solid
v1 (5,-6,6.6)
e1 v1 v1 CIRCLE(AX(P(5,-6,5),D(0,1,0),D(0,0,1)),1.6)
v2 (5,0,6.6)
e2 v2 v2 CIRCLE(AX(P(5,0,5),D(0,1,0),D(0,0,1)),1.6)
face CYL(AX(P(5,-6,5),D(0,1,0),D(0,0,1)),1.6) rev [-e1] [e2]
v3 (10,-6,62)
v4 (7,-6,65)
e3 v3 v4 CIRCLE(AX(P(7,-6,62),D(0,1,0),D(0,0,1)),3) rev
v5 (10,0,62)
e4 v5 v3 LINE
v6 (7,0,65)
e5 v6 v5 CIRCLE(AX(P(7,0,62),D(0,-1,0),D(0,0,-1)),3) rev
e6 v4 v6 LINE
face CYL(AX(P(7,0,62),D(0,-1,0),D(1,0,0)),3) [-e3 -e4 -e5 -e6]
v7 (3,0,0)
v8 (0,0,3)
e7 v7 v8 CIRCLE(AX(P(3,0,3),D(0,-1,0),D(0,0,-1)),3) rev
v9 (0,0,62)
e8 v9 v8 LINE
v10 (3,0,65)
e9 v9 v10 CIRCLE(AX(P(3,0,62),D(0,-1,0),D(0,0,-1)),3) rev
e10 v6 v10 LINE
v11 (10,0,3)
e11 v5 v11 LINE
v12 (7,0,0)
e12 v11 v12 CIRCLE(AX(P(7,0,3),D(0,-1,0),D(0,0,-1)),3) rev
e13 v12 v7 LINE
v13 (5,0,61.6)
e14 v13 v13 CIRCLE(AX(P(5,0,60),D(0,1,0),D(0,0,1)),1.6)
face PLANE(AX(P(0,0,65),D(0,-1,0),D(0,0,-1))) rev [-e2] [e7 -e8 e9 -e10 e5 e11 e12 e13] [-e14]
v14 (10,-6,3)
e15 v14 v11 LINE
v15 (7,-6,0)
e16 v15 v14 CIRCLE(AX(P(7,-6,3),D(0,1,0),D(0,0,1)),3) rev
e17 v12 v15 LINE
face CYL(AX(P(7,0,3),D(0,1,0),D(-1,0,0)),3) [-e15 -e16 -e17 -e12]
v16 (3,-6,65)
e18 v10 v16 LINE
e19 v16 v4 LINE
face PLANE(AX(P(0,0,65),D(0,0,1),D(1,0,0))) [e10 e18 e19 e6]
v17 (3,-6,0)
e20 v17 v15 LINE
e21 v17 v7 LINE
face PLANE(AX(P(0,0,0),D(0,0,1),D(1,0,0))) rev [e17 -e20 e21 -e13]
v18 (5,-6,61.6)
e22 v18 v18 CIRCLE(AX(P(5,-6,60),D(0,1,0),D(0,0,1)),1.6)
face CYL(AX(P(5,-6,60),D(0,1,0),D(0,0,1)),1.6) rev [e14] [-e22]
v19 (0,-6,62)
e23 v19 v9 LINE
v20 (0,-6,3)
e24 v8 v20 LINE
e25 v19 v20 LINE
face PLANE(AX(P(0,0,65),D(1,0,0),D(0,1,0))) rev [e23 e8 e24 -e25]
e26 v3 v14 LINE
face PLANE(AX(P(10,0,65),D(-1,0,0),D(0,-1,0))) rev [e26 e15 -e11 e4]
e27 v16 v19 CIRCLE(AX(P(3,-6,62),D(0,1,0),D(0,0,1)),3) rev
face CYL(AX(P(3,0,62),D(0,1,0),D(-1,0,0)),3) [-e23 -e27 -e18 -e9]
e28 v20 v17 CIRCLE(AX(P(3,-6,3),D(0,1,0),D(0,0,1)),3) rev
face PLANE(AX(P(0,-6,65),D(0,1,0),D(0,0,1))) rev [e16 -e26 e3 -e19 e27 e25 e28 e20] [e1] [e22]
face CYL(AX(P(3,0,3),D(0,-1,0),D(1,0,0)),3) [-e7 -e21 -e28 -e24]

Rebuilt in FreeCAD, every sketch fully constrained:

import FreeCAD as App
import Part
import Sketcher
from FreeCAD import Vector
Q = App.Units.Quantity


def edges_at(feature, points):
    """Names of the edges that pass closest to the given points."""
    edges = feature.Shape.Edges
    near = lambda p: min(range(len(edges)), key=lambda i: edges[i].distToShape(Part.Vertex(*p))[0])
    return sorted({f"Edge{near(p) + 1}" for p in points})


def add_polygon(sketch, points):
    """Adds a closed chain of lines whose ends are joined by coincident constraints."""
    first, n = sketch.GeometryCount, len(points)
    for a, b in zip(points, points[1:] + points[:1]):
        sketch.addGeometry(Part.LineSegment(App.Vector(*a, 0), App.Vector(*b, 0)), False)
    for i in range(n):
        sketch.addConstraint(Sketcher.Constraint("Coincident", first + i, 2, first + (i + 1) % n, 1))

doc = App.newDocument("Part")
body = doc.addObject("PartDesign::Body", "Body")

sketch1 = doc.addObject("Sketcher::SketchObject", "Sketch")
body.addObject(sketch1)
sketch1.AttachmentSupport = (doc.XY_Plane, [""])
sketch1.MapMode = "FlatFace"
add_polygon(sketch1, [(0, 0), (0, -6), (10, -6), (10, 0)])
sketch1.addConstraint(Sketcher.Constraint("Vertical", 0))
sketch1.addConstraint(Sketcher.Constraint("Horizontal", 1))
sketch1.addConstraint(Sketcher.Constraint("Vertical", 2))
sketch1.addConstraint(Sketcher.Constraint("Horizontal", 3))
sketch1.addConstraint(Sketcher.Constraint("Coincident", 3, 2, -1, 1))
sketch1.addConstraint(Sketcher.Constraint("DistanceX", 1, 1, 1, 2, Q("10 mm")))
sketch1.addConstraint(Sketcher.Constraint("DistanceY", 0, 2, 0, 1, Q("6 mm")))
pad1 = doc.addObject("PartDesign::Pad", "Pad")
body.addObject(pad1)
pad1.Profile = sketch1
pad1.Length = 65

sketch2 = doc.addObject("Sketcher::SketchObject", "Sketch001")
body.addObject(sketch2)
sketch2.AttachmentSupport = (doc.XZ_Plane, [""])
sketch2.MapMode = "FlatFace"
sketch2.addGeometry(Part.Circle(Vector(5, 5, 0), Vector(0, 0, 1), 1.6), False)
sketch2.addGeometry(Part.Circle(Vector(5, 60, 0), Vector(0, 0, 1), 1.6), False)
sketch2.addConstraint(Sketcher.Constraint("Equal", 0, 1))
sketch2.addConstraint(Sketcher.Constraint("Vertical", 0, 3, 1, 3))
sketch2.addConstraint(Sketcher.Constraint("Diameter", 0, Q("3.2 mm")))
sketch2.addConstraint(Sketcher.Constraint("DistanceX", -1, 1, 0, 3, Q("5 mm")))
sketch2.addConstraint(Sketcher.Constraint("DistanceY", -1, 1, 0, 3, Q("5 mm")))
sketch2.addConstraint(Sketcher.Constraint("DistanceY", -1, 1, 1, 3, Q("60 mm")))
pocket1 = doc.addObject("PartDesign::Pocket", "Pocket")
body.addObject(pocket1)
pocket1.Profile = sketch2
pocket1.Type = "ThroughAll"
pocket1.Reversed = True
doc.recompute()

fillet = doc.addObject("PartDesign::Fillet", "Fillet")
body.addObject(fillet)
fillet.Base = (pocket1, edges_at(pocket1, [
    (10, -3, 65),
    (0, -3, 65),
    (10, -3, 0),
    (0, -3, 0),
]))
fillet.Radius = 3

doc.recompute()
